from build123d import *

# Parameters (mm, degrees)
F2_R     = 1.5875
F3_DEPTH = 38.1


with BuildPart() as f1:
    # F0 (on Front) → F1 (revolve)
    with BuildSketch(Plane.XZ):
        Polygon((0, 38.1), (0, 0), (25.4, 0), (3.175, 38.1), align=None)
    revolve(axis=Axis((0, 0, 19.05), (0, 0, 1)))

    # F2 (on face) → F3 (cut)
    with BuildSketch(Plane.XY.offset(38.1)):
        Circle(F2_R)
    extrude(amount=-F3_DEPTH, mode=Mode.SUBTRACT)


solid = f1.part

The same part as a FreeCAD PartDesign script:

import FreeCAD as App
import Part
import Sketcher
from FreeCAD import Vector
Q = App.Units.Quantity

doc = App.newDocument("Part")
params = doc.addObject("Spreadsheet::Sheet", "Params")
for row, (alias, value) in enumerate([
    ("sketch1_width", "1 in"),
    ("sketch1_height", "1.5 in"),
    ("sketch1_width2", "0.125 in"),
    ("revolution_angle", "360 deg"),
    ("sketch2_diameter", "0.125 in"),
    ("pocket1_length", "1.5 in"),
], start=1):
    params.set(f"A{row}", alias)
    params.set(f"B{row}", "=" + value)
    params.setAlias(f"B{row}", alias)

body = doc.addObject("PartDesign::Body", "Body")

sketch1 = body.newObject("Sketcher::SketchObject", "Sketch")
sketch1.AttachmentSupport = (doc.getObject("XZ_Plane"), [""])
sketch1.MapMode = "FlatFace"
sketch1.addGeometry(Part.LineSegment(Vector(0, 38.1, 0), Vector(0, 0, 0)), False)
sketch1.addGeometry(Part.LineSegment(Vector(0, 0, 0), Vector(25.4, 0, 0)), False)
sketch1.addGeometry(Part.LineSegment(Vector(25.4, 0, 0), Vector(3.2, 38.1, 0)), False)
sketch1.addGeometry(Part.LineSegment(Vector(3.2, 38.1, 0), Vector(0, 38.1, 0)), False)
sketch1.addConstraint(Sketcher.Constraint("Coincident", 0, 2, 1, 1))
sketch1.addConstraint(Sketcher.Constraint("Coincident", 1, 2, 2, 1))
sketch1.addConstraint(Sketcher.Constraint("Coincident", 2, 2, 3, 1))
sketch1.addConstraint(Sketcher.Constraint("Coincident", 3, 2, 0, 1))
sketch1.addConstraint(Sketcher.Constraint("Vertical", 0))
sketch1.addConstraint(Sketcher.Constraint("Horizontal", 1))
sketch1.addConstraint(Sketcher.Constraint("Horizontal", 3))
sketch1.addConstraint(Sketcher.Constraint("Coincident", 0, 2, -1, 1))
sketch1.addConstraint(Sketcher.Constraint("DistanceX", 1, 1, 1, 2, Q("1 in")))
sketch1.addConstraint(Sketcher.Constraint("DistanceY", 0, 2, 0, 1, Q("1.5 in")))
sketch1.addConstraint(Sketcher.Constraint("DistanceX", 3, 2, 3, 1, Q("0.125 in")))
sketch1.setExpression("Constraints[8]", "Params.sketch1_width")
sketch1.setExpression("Constraints[9]", "Params.sketch1_height")
sketch1.setExpression("Constraints[10]", "Params.sketch1_width2")
revolution = body.newObject("PartDesign::Revolution", "Revolution")
revolution.Profile = sketch1
revolution.ReferenceAxis = (sketch1, ["V_Axis"])
revolution.setExpression("Angle", "Params.revolution_angle")

sketch2 = body.newObject("Sketcher::SketchObject", "Sketch001")
sketch2.AttachmentSupport = (doc.getObject("XY_Plane"), [""])
sketch2.MapMode = "FlatFace"
sketch2.AttachmentOffset = App.Placement(Vector(0, 0, 1.5 * 25.4), App.Rotation())
sketch2.addGeometry(Part.Circle(Vector(0, 0, 0), Vector(0, 0, 1), 1.6), False)
sketch2.addConstraint(Sketcher.Constraint("Coincident", 0, 3, -1, 1))
sketch2.addConstraint(Sketcher.Constraint("Diameter", 0, Q("0.125 in")))
sketch2.setExpression("Constraints[1]", "Params.sketch2_diameter")
pocket1 = body.newObject("PartDesign::Pocket", "Pocket")
pocket1.Profile = sketch2
pocket1.setExpression("Length", "Params.pocket1_length")

doc.recompute()
